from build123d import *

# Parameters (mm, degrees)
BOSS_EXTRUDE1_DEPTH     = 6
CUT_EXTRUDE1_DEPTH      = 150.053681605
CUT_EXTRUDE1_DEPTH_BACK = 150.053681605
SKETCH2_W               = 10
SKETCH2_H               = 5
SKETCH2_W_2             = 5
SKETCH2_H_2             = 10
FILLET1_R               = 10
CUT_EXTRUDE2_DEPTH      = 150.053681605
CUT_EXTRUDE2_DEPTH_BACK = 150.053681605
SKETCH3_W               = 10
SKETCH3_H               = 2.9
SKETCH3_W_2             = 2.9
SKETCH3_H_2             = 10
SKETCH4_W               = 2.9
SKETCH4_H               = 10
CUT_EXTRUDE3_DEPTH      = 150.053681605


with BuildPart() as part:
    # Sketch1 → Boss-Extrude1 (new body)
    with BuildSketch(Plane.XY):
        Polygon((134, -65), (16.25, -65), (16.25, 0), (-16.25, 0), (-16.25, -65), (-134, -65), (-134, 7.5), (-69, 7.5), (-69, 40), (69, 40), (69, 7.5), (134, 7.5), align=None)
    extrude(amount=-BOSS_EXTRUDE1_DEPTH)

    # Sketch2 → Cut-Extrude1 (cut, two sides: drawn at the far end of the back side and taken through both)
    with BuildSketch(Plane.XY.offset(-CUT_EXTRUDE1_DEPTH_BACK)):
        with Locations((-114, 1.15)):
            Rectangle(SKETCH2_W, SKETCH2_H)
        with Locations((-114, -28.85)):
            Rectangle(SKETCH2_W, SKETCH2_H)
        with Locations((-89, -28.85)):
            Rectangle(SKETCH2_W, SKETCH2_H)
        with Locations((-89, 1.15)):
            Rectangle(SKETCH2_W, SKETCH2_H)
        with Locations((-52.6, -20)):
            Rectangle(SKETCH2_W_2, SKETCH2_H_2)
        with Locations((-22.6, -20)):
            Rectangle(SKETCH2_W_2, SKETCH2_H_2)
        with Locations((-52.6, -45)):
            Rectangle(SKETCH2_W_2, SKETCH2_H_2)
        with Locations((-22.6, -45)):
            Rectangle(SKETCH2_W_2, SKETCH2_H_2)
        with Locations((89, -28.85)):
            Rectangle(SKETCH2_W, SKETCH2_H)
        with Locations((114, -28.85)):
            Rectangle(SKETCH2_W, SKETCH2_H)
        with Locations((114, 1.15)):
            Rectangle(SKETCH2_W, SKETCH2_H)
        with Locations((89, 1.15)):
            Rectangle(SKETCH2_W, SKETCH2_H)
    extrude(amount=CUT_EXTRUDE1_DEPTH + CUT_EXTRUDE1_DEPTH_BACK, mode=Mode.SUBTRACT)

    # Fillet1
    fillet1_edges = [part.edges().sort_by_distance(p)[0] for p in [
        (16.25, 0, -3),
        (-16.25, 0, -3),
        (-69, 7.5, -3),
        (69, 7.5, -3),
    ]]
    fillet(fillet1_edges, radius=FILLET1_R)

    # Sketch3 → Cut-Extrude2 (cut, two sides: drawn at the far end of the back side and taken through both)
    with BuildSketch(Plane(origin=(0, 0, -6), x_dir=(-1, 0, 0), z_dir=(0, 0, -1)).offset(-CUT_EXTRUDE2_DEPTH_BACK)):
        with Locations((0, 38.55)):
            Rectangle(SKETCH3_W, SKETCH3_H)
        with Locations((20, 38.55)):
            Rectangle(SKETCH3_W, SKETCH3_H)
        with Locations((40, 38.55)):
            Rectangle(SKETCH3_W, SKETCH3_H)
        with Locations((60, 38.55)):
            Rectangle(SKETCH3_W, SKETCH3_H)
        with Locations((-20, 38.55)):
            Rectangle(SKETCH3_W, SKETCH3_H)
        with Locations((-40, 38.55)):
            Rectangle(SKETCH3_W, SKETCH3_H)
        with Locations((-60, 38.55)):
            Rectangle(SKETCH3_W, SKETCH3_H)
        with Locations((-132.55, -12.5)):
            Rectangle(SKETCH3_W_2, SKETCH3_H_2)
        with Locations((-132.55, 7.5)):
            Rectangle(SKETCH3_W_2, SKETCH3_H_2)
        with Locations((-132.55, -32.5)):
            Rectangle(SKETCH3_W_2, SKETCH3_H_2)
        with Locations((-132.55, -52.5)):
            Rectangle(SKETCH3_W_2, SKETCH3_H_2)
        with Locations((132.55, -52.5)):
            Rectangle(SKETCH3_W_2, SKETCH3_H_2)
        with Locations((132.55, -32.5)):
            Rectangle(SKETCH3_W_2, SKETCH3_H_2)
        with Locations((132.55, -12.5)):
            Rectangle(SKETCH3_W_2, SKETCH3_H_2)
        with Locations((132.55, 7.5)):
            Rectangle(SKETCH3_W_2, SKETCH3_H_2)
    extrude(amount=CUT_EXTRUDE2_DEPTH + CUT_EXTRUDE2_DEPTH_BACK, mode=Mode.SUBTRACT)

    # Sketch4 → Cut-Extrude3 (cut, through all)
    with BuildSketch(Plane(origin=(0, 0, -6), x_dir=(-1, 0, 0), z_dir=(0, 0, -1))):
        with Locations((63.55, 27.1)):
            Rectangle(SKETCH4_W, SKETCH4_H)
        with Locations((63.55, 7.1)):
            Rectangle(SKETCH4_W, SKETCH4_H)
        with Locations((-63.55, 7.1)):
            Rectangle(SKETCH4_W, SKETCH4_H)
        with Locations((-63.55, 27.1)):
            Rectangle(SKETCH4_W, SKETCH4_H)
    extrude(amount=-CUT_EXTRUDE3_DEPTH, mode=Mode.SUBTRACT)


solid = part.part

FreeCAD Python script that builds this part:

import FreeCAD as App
import Part
import Sketcher

V = App.Vector
Q = App.Units.Quantity


def edges_at(feature, points):
    """Names of the edges that pass closest to the given points."""
    edges = feature.Shape.Edges
    near = lambda p: min(range(len(edges)), key=lambda i: edges[i].distToShape(Part.Vertex(*p))[0])
    return sorted({f"Edge{near(p) + 1}" for p in points})


def add_polygon(sketch, points):
    """Adds a closed chain of lines whose ends are joined by coincident constraints."""
    first, n = sketch.GeometryCount, len(points)
    for a, b in zip(points, points[1:] + points[:1]):
        sketch.addGeometry(Part.LineSegment(App.Vector(*a, 0), App.Vector(*b, 0)), False)
    for i in range(n):
        sketch.addConstraint(Sketcher.Constraint("Coincident", first + i, 2, first + (i + 1) % n, 1))

doc = App.newDocument("Part")
params = doc.addObject("Spreadsheet::Sheet", "Params")
for row, (alias, value) in enumerate([
    ("sketch1_width", "65 mm"),
    ("sketch1_width2", "138 mm"),
    ("sketch1_width3", "32.5 mm"),
    ("sketch1_height", "72.5 mm"),
    ("pad1_length", "6 mm"),
    ("sketch2_width", "10 mm"),
    ("sketch2_width2", "5 mm"),
    ("fillet_radius", "10 mm"),
    ("sketch3_width", "10 mm"),
    ("sketch3_width2", "2.9 mm"),
    ("sketch4_height", "10 mm"),
    ("sketch4_width", "2.9 mm"),
], start=1):
    params.set(f"A{row}", alias)
    params.set(f"B{row}", "=" + value)
    params.setAlias(f"B{row}", alias)

body = doc.addObject("PartDesign::Body", "Body")

sketch1 = body.newObject("Sketcher::SketchObject", "Sketch")
sketch1.AttachmentSupport = (doc.getObject("XY_Plane"), [""])
sketch1.MapMode = "FlatFace"
add_polygon(sketch1, [(16, -65), (134, -65), (134, 8), (69, 8), (69, 40), (-69, 40), (-69, 8), (-134, 8), (-134, -65), (-16, -65), (-16, 0), (16, 0)])
sketch1.addConstraint([
    Sketcher.Constraint("Horizontal", 0),
    Sketcher.Constraint("Vertical", 1),
    Sketcher.Constraint("Horizontal", 2),
    Sketcher.Constraint("Vertical", 3),
    Sketcher.Constraint("Horizontal", 4),
    Sketcher.Constraint("Vertical", 5),
    Sketcher.Constraint("Horizontal", 6),
    Sketcher.Constraint("Vertical", 7),
    Sketcher.Constraint("Horizontal", 8),
    Sketcher.Constraint("Vertical", 9),
    Sketcher.Constraint("Horizontal", 10),
    Sketcher.Constraint("Vertical", 11),
    Sketcher.Constraint("Symmetric", 9, 2, 10, 2, -1, 1),
    Sketcher.Constraint("Symmetric", 2, 2, 5, 2, -2),
    Sketcher.Constraint("Symmetric", 0, 2, 7, 2, -2),
    Sketcher.Constraint("Equal", 10, 3),
    Sketcher.Constraint("Equal", 6, 9),
    Sketcher.Constraint("DistanceX", 2, 2, 2, 1, Q("65 mm")),
    Sketcher.Constraint("DistanceX", 4, 2, 4, 1, Q("138 mm")),
    Sketcher.Constraint("DistanceX", 10, 1, 10, 2, Q("32.5 mm")),
    Sketcher.Constraint("DistanceY", 1, 1, 1, 2, Q("72.5 mm")),
])
sketch1.setExpression("Constraints[29]", "Params.sketch1_width")
sketch1.setExpression("Constraints[30]", "Params.sketch1_width2")
sketch1.setExpression("Constraints[31]", "Params.sketch1_width3")
sketch1.setExpression("Constraints[32]", "Params.sketch1_height")
pad1 = body.newObject("PartDesign::Pad", "Pad")
pad1.Profile = sketch1
pad1.setExpression("Length", "Params.pad1_length")
pad1.Reversed = True

sketch2 = body.newObject("Sketcher::SketchObject", "Sketch001")
sketch2.AttachmentSupport = (doc.getObject("XY_Plane"), [""])
sketch2.MapMode = "FlatFace"
add_polygon(sketch2, [(-119, 4), (-119, -1), (-109, -1), (-109, 4)])
add_polygon(sketch2, [(-119, -26), (-119, -31), (-109, -31), (-109, -26)])
add_polygon(sketch2, [(-94, -26), (-94, -31), (-84, -31), (-84, -26)])
add_polygon(sketch2, [(-94, 4), (-94, -1), (-84, -1), (-84, 4)])
add_polygon(sketch2, [(-55, -15), (-55, -25), (-50, -25), (-50, -15)])
add_polygon(sketch2, [(-25, -15), (-25, -25), (-20, -25), (-20, -15)])
add_polygon(sketch2, [(-55, -40), (-55, -50), (-50, -50), (-50, -40)])
add_polygon(sketch2, [(-25, -40), (-25, -50), (-20, -50), (-20, -40)])
add_polygon(sketch2, [(84, -26), (84, -31), (94, -31), (94, -26)])
add_polygon(sketch2, [(109, -26), (109, -31), (119, -31), (119, -26)])
add_polygon(sketch2, [(109, 4), (109, -1), (119, -1), (119, 4)])
add_polygon(sketch2, [(84, 4), (84, -1), (94, -1), (94, 4)])
sketch2.addConstraint([
    Sketcher.Constraint("Vertical", 0),
    Sketcher.Constraint("Horizontal", 1),
    Sketcher.Constraint("Vertical", 2),
    Sketcher.Constraint("Horizontal", 3),
    Sketcher.Constraint("Vertical", 4),
    Sketcher.Constraint("Horizontal", 5),
    Sketcher.Constraint("Vertical", 6),
    Sketcher.Constraint("Horizontal", 7),
    Sketcher.Constraint("Vertical", 8),
    Sketcher.Constraint("Horizontal", 9),
    Sketcher.Constraint("Vertical", 10),
    Sketcher.Constraint("Horizontal", 11),
    Sketcher.Constraint("Vertical", 12),
    Sketcher.Constraint("Horizontal", 13),
    Sketcher.Constraint("Vertical", 14),
    Sketcher.Constraint("Horizontal", 15),
    Sketcher.Constraint("Vertical", 16),
    Sketcher.Constraint("Horizontal", 17),
    Sketcher.Constraint("Vertical", 18),
    Sketcher.Constraint("Horizontal", 19),
    Sketcher.Constraint("Vertical", 20),
    Sketcher.Constraint("Horizontal", 21),
    Sketcher.Constraint("Vertical", 22),
    Sketcher.Constraint("Horizontal", 23),
    Sketcher.Constraint("Vertical", 24),
    Sketcher.Constraint("Horizontal", 25),
    Sketcher.Constraint("Vertical", 26),
    Sketcher.Constraint("Horizontal", 27),
    Sketcher.Constraint("Vertical", 28),
    Sketcher.Constraint("Horizontal", 29),
    Sketcher.Constraint("Vertical", 30),
    Sketcher.Constraint("Horizontal", 31),
    Sketcher.Constraint("Vertical", 32),
    Sketcher.Constraint("Horizontal", 33),
    Sketcher.Constraint("Vertical", 34),
    Sketcher.Constraint("Horizontal", 35),
    Sketcher.Constraint("Vertical", 36),
    Sketcher.Constraint("Horizontal", 37),
    Sketcher.Constraint("Vertical", 38),
    Sketcher.Constraint("Horizontal", 39),
    Sketcher.Constraint("Vertical", 40),
    Sketcher.Constraint("Horizontal", 41),
    Sketcher.Constraint("Vertical", 42),
    Sketcher.Constraint("Horizontal", 43),
    Sketcher.Constraint("Vertical", 44),
    Sketcher.Constraint("Horizontal", 45),
    Sketcher.Constraint("Vertical", 46),
    Sketcher.Constraint("Horizontal", 47),
    Sketcher.Constraint("Symmetric", 9, 2, 32, 2, -2),
    Sketcher.Constraint("Symmetric", 11, 2, 34, 2, -2),
    Sketcher.Constraint("Symmetric", 5, 2, 36, 2, -2),
    Sketcher.Constraint("Symmetric", 7, 2, 38, 2, -2),
    Sketcher.Constraint("Symmetric", 1, 2, 40, 2, -2),
    Sketcher.Constraint("Symmetric", 3, 2, 42, 2, -2),
    Sketcher.Constraint("Symmetric", 13, 2, 44, 2, -2),
    Sketcher.Constraint("Symmetric", 15, 2, 46, 2, -2),
    Sketcher.Constraint("Horizontal", 5, 2, 8, 2),
    Sketcher.Constraint("Horizontal", 7, 2, 10, 2),
    Sketcher.Constraint("Horizontal", 1, 2, 12, 2),
    Sketcher.Constraint("Horizontal", 3, 2, 14, 2),
    Sketcher.Constraint("Horizontal", 17, 2, 20, 2),
    Sketcher.Constraint("Horizontal", 19, 2, 22, 2),
    Sketcher.Constraint("Horizontal", 25, 2, 28, 2),
    Sketcher.Constraint("Horizontal", 27, 2, 30, 2),
    Sketcher.Constraint("Vertical", 3, 2, 4, 2),
    Sketcher.Constraint("Vertical", 2, 2, 5, 2),
    Sketcher.Constraint("Vertical", 11, 2, 12, 2),
    Sketcher.Constraint("Vertical", 10, 2, 13, 2),
    Sketcher.Constraint("Vertical", 19, 2, 24, 2),
    Sketcher.Constraint("Vertical", 18, 2, 25, 2),
    Sketcher.Constraint("Vertical", 23, 2, 28, 2),
    Sketcher.Constraint("Vertical", 22, 2, 29, 2),
    Sketcher.Constraint("Equal", 7, 9),
    Sketcher.Constraint("Equal", 19, 21),
    Sketcher.Constraint("Equal", 31, 0),
    Sketcher.Constraint("Equal", 2, 4),
    Sketcher.Constraint("Equal", 47, 16),
    Sketcher.Constraint("Equal", 22, 24),
    Sketcher.Constraint("DistanceX", 1, 1, 1, 2, Q("10 mm")),
    Sketcher.Constraint("DistanceX", 17, 1, 17, 2, Q("5 mm")),
    Sketcher.Constraint("DistanceX", 0, 2, -1, 1, Q("119 mm")),
    Sketcher.Constraint("DistanceX", 8, 2, -1, 1, Q("94 mm")),
    Sketcher.Constraint("DistanceY", 16, 2, -1, 1, Q("25 mm")),
    Sketcher.Constraint("DistanceY", 24, 2, -1, 1, Q("50 mm")),
    Sketcher.Constraint("DistanceY", 4, 2, 0, 2, Q("30 mm")),
    Sketcher.Constraint("DistanceX", 17, 2, 20, 2, Q("25 mm")),
    Sketcher.Constraint("DistanceX", 16, 2, -1, 1, Q("55.1 mm")),
    Sketcher.Constraint("DistanceY", 0, 2, -1, 1, Q("1.35 mm")),
])
sketch2.setExpression("Constraints[126]", "Params.sketch2_width")
sketch2.setExpression("Constraints[127]", "Params.sketch2_width2")
pocket1 = body.newObject("PartDesign::Pocket", "Pocket")
pocket1.Profile = sketch2
pocket1.Type = "ThroughAll"
pocket1.Midplane = True
doc.recompute()

fillet = body.newObject("PartDesign::Fillet", "Fillet")
fillet.Base = (pocket1, edges_at(pocket1, [
    (16.25, 0, -3),
    (-16.25, 0, -3),
    (-69, 7.5, -3),
    (69, 7.5, -3),
]))
fillet.setExpression("Radius", "Params.fillet_radius")

sketch3 = body.newObject("Sketcher::SketchObject", "Sketch002")
sketch3.AttachmentSupport = (doc.getObject("XY_Plane"), [""])
sketch3.MapMode = "FlatFace"
sketch3.AttachmentOffset = App.Placement(V(0, 0, -6), App.Rotation())
add_polygon(sketch3, [(5, 40), (5, 37.1), (-5, 37.1), (-5, 40)])
add_polygon(sketch3, [(-15, 40), (-15, 37.1), (-25, 37.1), (-25, 40)])
add_polygon(sketch3, [(-35, 40), (-35, 37.1), (-45, 37.1), (-45, 40)])
add_polygon(sketch3, [(-55, 40), (-55, 37.1), (-65, 37.1), (-65, 40)])
add_polygon(sketch3, [(25, 40), (25, 37.1), (15, 37.1), (15, 40)])
add_polygon(sketch3, [(45, 40), (45, 37.1), (35, 37.1), (35, 40)])
add_polygon(sketch3, [(65, 40), (65, 37.1), (55, 37.1), (55, 40)])
add_polygon(sketch3, [(134, -7.5), (134, -17.5), (131.1, -17.5), (131.1, -7.5)])
add_polygon(sketch3, [(134, 12.5), (134, 2.5), (131.1, 2.5), (131.1, 12.5)])
add_polygon(sketch3, [(134, -27.5), (134, -37.5), (131.1, -37.5), (131.1, -27.5)])
add_polygon(sketch3, [(134, -47.5), (134, -57.5), (131.1, -57.5), (131.1, -47.5)])
add_polygon(sketch3, [(-131.1, -47.5), (-131.1, -57.5), (-134, -57.5), (-134, -47.5)])
add_polygon(sketch3, [(-131.1, -27.5), (-131.1, -37.5), (-134, -37.5), (-134, -27.5)])
add_polygon(sketch3, [(-131.1, -7.5), (-131.1, -17.5), (-134, -17.5), (-134, -7.5)])
add_polygon(sketch3, [(-131.1, 12.5), (-131.1, 2.5), (-134, 2.5), (-134, 12.5)])
sketch3.addConstraint([
    Sketcher.Constraint("Vertical", 0),
    Sketcher.Constraint("Horizontal", 1),
    Sketcher.Constraint("Vertical", 2),
    Sketcher.Constraint("Horizontal", 3),
    Sketcher.Constraint("Vertical", 4),
    Sketcher.Constraint("Horizontal", 5),
    Sketcher.Constraint("Vertical", 6),
    Sketcher.Constraint("Horizontal", 7),
    Sketcher.Constraint("Vertical", 8),
    Sketcher.Constraint("Horizontal", 9),
    Sketcher.Constraint("Vertical", 10),
    Sketcher.Constraint("Horizontal", 11),
    Sketcher.Constraint("Vertical", 12),
    Sketcher.Constraint("Horizontal", 13),
    Sketcher.Constraint("Vertical", 14),
    Sketcher.Constraint("Horizontal", 15),
    Sketcher.Constraint("Vertical", 16),
    Sketcher.Constraint("Horizontal", 17),
    Sketcher.Constraint("Vertical", 18),
    Sketcher.Constraint("Horizontal", 19),
    Sketcher.Constraint("Vertical", 20),
    Sketcher.Constraint("Horizontal", 21),
    Sketcher.Constraint("Vertical", 22),
    Sketcher.Constraint("Horizontal", 23),
    Sketcher.Constraint("Vertical", 24),
    Sketcher.Constraint("Horizontal", 25),
    Sketcher.Constraint("Vertical", 26),
    Sketcher.Constraint("Horizontal", 27),
    Sketcher.Constraint("Vertical", 28),
    Sketcher.Constraint("Horizontal", 29),
    Sketcher.Constraint("Vertical", 30),
    Sketcher.Constraint("Horizontal", 31),
    Sketcher.Constraint("Vertical", 32),
    Sketcher.Constraint("Horizontal", 33),
    Sketcher.Constraint("Vertical", 34),
    Sketcher.Constraint("Horizontal", 35),
    Sketcher.Constraint("Vertical", 36),
    Sketcher.Constraint("Horizontal", 37),
    Sketcher.Constraint("Vertical", 38),
    Sketcher.Constraint("Horizontal", 39),
    Sketcher.Constraint("Vertical", 40),
    Sketcher.Constraint("Horizontal", 41),
    Sketcher.Constraint("Vertical", 42),
    Sketcher.Constraint("Horizontal", 43),
    Sketcher.Constraint("Vertical", 44),
    Sketcher.Constraint("Horizontal", 45),
    Sketcher.Constraint("Vertical", 46),
    Sketcher.Constraint("Horizontal", 47),
    Sketcher.Constraint("Vertical", 48),
    Sketcher.Constraint("Horizontal", 49),
    Sketcher.Constraint("Vertical", 50),
    Sketcher.Constraint("Horizontal", 51),
    Sketcher.Constraint("Vertical", 52),
    Sketcher.Constraint("Horizontal", 53),
    Sketcher.Constraint("Vertical", 54),
    Sketcher.Constraint("Horizontal", 55),
    Sketcher.Constraint("Vertical", 56),
    Sketcher.Constraint("Horizontal", 57),
    Sketcher.Constraint("Vertical", 58),
    Sketcher.Constraint("Horizontal", 59),
    Sketcher.Constraint("Symmetric", 5, 2, 16, 2, -2),
    Sketcher.Constraint("Symmetric", 7, 2, 18, 2, -2),
    Sketcher.Constraint("Symmetric", 9, 2, 20, 2, -2),
    Sketcher.Constraint("Symmetric", 11, 2, 22, 2, -2),
    Sketcher.Constraint("Symmetric", 13, 2, 24, 2, -2),
    Sketcher.Constraint("Symmetric", 15, 2, 26, 2, -2),
    Sketcher.Constraint("Symmetric", 41, 2, 44, 2, -2),
    Sketcher.Constraint("Symmetric", 43, 2, 46, 2, -2),
    Sketcher.Constraint("Symmetric", 37, 2, 48, 2, -2),
    Sketcher.Constraint("Symmetric", 39, 2, 50, 2, -2),
    Sketcher.Constraint("Symmetric", 29, 2, 52, 2, -2),
    Sketcher.Constraint("Symmetric", 31, 2, 54, 2, -2),
    Sketcher.Constraint("Symmetric", 33, 2, 56, 2, -2),
    Sketcher.Constraint("Symmetric", 35, 2, 58, 2, -2),
    Sketcher.Constraint("Horizontal", 1, 2, 4, 2),
    Sketcher.Constraint("Horizontal", 3, 2, 6, 2),
    Sketcher.Constraint("Horizontal", 5, 2, 8, 2),
    Sketcher.Constraint("Horizontal", 7, 2, 10, 2),
    Sketcher.Constraint("Horizontal", 9, 2, 12, 2),
    Sketcher.Constraint("Horizontal", 11, 2, 14, 2),
    Sketcher.Constraint("Vertical", 31, 2, 32, 2),
    Sketcher.Constraint("Vertical", 30, 2, 33, 2),
    Sketcher.Constraint("Vertical", 35, 2, 36, 2),
    Sketcher.Constraint("Vertical", 34, 2, 37, 2),
    Sketcher.Constraint("Vertical", 39, 2, 40, 2),
    Sketcher.Constraint("Vertical", 38, 2, 41, 2),
    Sketcher.Constraint("Equal", 3, 5),
    Sketcher.Constraint("Equal", 7, 9),
    Sketcher.Constraint("Equal", 11, 13),
    Sketcher.Constraint("Equal", 59, 0),
    Sketcher.Constraint("Equal", 27, 28),
    Sketcher.Constraint("Equal", 30, 32),
    Sketcher.Constraint("Equal", 34, 36),
    Sketcher.Constraint("Equal", 38, 40),
    Sketcher.Constraint("DistanceX", 1, 2, 1, 1, Q("10 mm")),
    Sketcher.Constraint("DistanceX", 29, 2, 29, 1, Q("2.9 mm")),
    Sketcher.Constraint("DistanceX", -1, 1, 0, 2, Q("5 mm")),
    Sketcher.Constraint("DistanceY", -1, 1, 2, 2, Q("40 mm")),
    Sketcher.Constraint("DistanceX", 4, 2, -1, 1, Q("15 mm")),
    Sketcher.Constraint("DistanceX", 8, 2, -1, 1, Q("35 mm")),
    Sketcher.Constraint("DistanceX", 12, 2, -1, 1, Q("55 mm")),
    Sketcher.Constraint("DistanceX", -1, 1, 28, 2, Q("134 mm")),
    Sketcher.Constraint("DistanceY", 31, 2, 32, 2, Q("10 mm")),
    Sketcher.Constraint("DistanceY", 36, 2, 28, 2, Q("20 mm")),
    Sketcher.Constraint("DistanceY", 40, 2, 36, 2, Q("20 mm")),
    Sketcher.Constraint("DistanceY", 28, 2, -1, 1, Q("17.5 mm")),
])
sketch3.setExpression("Constraints[154]", "Params.sketch3_width")
sketch3.setExpression("Constraints[155]", "Params.sketch3_width2")
pocket2 = body.newObject("PartDesign::Pocket", "Pocket001")
pocket2.Profile = sketch3
pocket2.Type = "ThroughAll"
pocket2.Midplane = True

sketch4 = body.newObject("Sketcher::SketchObject", "Sketch003")
sketch4.AttachmentSupport = (doc.getObject("XY_Plane"), [""])
sketch4.MapMode = "FlatFace"
sketch4.AttachmentOffset = App.Placement(V(0, 0, -6), App.Rotation())
add_polygon(sketch4, [(-62.1, 32.1), (-62.1, 22.1), (-65, 22.1), (-65, 32.1)])
add_polygon(sketch4, [(-62.1, 12.1), (-62.1, 2.1), (-65, 2.1), (-65, 12.1)])
add_polygon(sketch4, [(65, 12.1), (65, 2.1), (62.1, 2.1), (62.1, 12.1)])
add_polygon(sketch4, [(65, 32.1), (65, 22.1), (62.1, 22.1), (62.1, 32.1)])
sketch4.addConstraint([
    Sketcher.Constraint("Vertical", 0),
    Sketcher.Constraint("Horizontal", 1),
    Sketcher.Constraint("Vertical", 2),
    Sketcher.Constraint("Horizontal", 3),
    Sketcher.Constraint("Vertical", 4),
    Sketcher.Constraint("Horizontal", 5),
    Sketcher.Constraint("Vertical", 6),
    Sketcher.Constraint("Horizontal", 7),
    Sketcher.Constraint("Vertical", 8),
    Sketcher.Constraint("Horizontal", 9),
    Sketcher.Constraint("Vertical", 10),
    Sketcher.Constraint("Horizontal", 11),
    Sketcher.Constraint("Vertical", 12),
    Sketcher.Constraint("Horizontal", 13),
    Sketcher.Constraint("Vertical", 14),
    Sketcher.Constraint("Horizontal", 15),
    Sketcher.Constraint("Symmetric", 5, 2, 8, 2, -2),
    Sketcher.Constraint("Symmetric", 7, 2, 10, 2, -2),
    Sketcher.Constraint("Symmetric", 1, 2, 12, 2, -2),
    Sketcher.Constraint("Symmetric", 3, 2, 14, 2, -2),
    Sketcher.Constraint("Vertical", 3, 2, 4, 2),
    Sketcher.Constraint("Vertical", 2, 2, 5, 2),
    Sketcher.Constraint("Equal", 2, 4),
    Sketcher.Constraint("DistanceY", 0, 2, 0, 1, Q("10 mm")),
    Sketcher.Constraint("DistanceX", 1, 2, 1, 1, Q("2.9 mm")),
    Sketcher.Constraint("DistanceX", 1, 2, -1, 1, Q("65 mm")),
    Sketcher.Constraint("DistanceY", 4, 2, 0, 2, Q("20 mm")),
    Sketcher.Constraint("DistanceY", -1, 1, 0, 2, Q("22.1 mm")),
])
sketch4.setExpression("Constraints[39]", "Params.sketch4_height")
sketch4.setExpression("Constraints[40]", "Params.sketch4_width")
pocket3 = body.newObject("PartDesign::Pocket", "Pocket002")
pocket3.Profile = sketch4
pocket3.Type = "ThroughAll"
pocket3.Reversed = True

doc.recompute()
